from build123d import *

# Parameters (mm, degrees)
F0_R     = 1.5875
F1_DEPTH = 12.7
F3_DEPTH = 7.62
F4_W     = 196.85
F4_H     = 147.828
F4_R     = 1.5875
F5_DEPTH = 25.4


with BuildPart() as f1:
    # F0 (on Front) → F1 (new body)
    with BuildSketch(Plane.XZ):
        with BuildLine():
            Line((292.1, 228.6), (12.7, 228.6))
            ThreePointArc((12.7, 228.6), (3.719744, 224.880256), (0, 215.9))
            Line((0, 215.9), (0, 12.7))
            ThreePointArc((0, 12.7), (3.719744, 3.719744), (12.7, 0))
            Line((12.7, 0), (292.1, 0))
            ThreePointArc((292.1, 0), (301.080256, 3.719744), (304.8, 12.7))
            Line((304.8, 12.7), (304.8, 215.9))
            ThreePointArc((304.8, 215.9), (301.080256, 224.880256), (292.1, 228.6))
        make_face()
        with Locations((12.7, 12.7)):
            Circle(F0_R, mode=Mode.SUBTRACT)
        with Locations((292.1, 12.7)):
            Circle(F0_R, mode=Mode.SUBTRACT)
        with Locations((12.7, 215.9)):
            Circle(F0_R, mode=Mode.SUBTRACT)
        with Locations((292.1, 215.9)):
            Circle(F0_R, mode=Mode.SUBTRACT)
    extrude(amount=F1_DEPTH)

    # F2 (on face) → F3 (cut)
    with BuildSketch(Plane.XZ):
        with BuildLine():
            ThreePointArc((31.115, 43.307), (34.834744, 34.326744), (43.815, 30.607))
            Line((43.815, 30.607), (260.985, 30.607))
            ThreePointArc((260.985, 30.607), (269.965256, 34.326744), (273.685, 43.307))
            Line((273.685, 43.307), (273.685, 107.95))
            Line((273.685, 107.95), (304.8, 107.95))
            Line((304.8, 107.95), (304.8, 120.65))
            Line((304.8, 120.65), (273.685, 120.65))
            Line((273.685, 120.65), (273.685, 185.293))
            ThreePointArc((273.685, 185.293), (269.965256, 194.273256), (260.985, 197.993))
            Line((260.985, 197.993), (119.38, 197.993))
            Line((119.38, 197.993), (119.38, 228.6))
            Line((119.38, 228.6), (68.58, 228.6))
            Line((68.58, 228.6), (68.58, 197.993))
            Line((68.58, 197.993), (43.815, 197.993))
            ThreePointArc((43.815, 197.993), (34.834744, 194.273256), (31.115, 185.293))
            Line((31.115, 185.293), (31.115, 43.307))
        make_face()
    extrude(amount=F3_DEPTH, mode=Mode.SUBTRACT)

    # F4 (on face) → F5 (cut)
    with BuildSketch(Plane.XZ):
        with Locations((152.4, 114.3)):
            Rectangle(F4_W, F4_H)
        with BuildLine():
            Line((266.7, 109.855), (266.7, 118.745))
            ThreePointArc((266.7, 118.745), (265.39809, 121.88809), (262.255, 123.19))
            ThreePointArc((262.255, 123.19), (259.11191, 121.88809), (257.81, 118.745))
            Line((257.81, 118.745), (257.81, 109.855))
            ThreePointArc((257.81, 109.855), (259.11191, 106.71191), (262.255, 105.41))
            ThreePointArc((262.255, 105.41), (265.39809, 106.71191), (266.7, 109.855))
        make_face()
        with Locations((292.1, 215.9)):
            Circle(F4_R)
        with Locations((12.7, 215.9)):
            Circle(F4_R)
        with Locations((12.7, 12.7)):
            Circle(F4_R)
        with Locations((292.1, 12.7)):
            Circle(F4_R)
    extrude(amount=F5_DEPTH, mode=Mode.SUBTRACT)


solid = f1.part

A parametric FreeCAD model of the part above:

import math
import FreeCAD as App
import Part
import Sketcher
from FreeCAD import Vector
Q = App.Units.Quantity

doc = App.newDocument("Part")
body = doc.addObject("PartDesign::Body", "Body")

# Sketch on XZ plane
sketch1 = doc.addObject("Sketcher::SketchObject", "Sketch")
body.addObject(sketch1)
sketch1.AttachmentSupport = (doc.XZ_Plane, [""])
sketch1.MapMode = "FlatFace"
sketch1.addGeometry(Part.LineSegment(Vector(292.1, 228.6, 0), Vector(12.7, 228.6, 0)), False)
sketch1.addGeometry(Part.ArcOfCircle(Part.Circle(Vector(12.7, 215.9, 0), Vector(0, 0, 1), 12.7), math.radians(90), math.radians(180)), False)
sketch1.addGeometry(Part.LineSegment(Vector(0, 215.9, 0), Vector(0, 12.7, 0)), False)
sketch1.addGeometry(Part.ArcOfCircle(Part.Circle(Vector(12.7, 12.7, 0), Vector(0, 0, 1), 12.7), math.radians(-180), math.radians(-90)), False)
sketch1.addGeometry(Part.LineSegment(Vector(12.7, 0, 0), Vector(292.1, 0, 0)), False)
sketch1.addGeometry(Part.ArcOfCircle(Part.Circle(Vector(292.1, 12.7, 0), Vector(0, 0, 1), 12.7), math.radians(-90), math.radians(0)), False)
sketch1.addGeometry(Part.LineSegment(Vector(304.8, 12.7, 0), Vector(304.8, 215.9, 0)), False)
sketch1.addGeometry(Part.ArcOfCircle(Part.Circle(Vector(292.1, 215.9, 0), Vector(0, 0, 1), 12.7), math.radians(0), math.radians(90)), False)
sketch1.addGeometry(Part.Circle(Vector(12.7, 12.7, 0), Vector(0, 0, 1), 1.6), False)
sketch1.addGeometry(Part.Circle(Vector(292.1, 12.7, 0), Vector(0, 0, 1), 1.6), False)
sketch1.addGeometry(Part.Circle(Vector(12.7, 215.9, 0), Vector(0, 0, 1), 1.6), False)
sketch1.addGeometry(Part.Circle(Vector(292.1, 215.9, 0), Vector(0, 0, 1), 1.6), False)
sketch1.addConstraint(Sketcher.Constraint("Tangent", 0, 2, 1, 1))
sketch1.addConstraint(Sketcher.Constraint("Tangent", 1, 2, 2, 1))
sketch1.addConstraint(Sketcher.Constraint("Tangent", 2, 2, 3, 1))
sketch1.addConstraint(Sketcher.Constraint("Tangent", 3, 2, 4, 1))
sketch1.addConstraint(Sketcher.Constraint("Tangent", 4, 2, 5, 1))
sketch1.addConstraint(Sketcher.Constraint("Tangent", 5, 2, 6, 1))
sketch1.addConstraint(Sketcher.Constraint("Tangent", 6, 2, 7, 1))
sketch1.addConstraint(Sketcher.Constraint("Tangent", 7, 2, 0, 1))
sketch1.addConstraint(Sketcher.Constraint("Horizontal", 0))
sketch1.addConstraint(Sketcher.Constraint("Vertical", 2))
sketch1.addConstraint(Sketcher.Constraint("Horizontal", 4))
sketch1.addConstraint(Sketcher.Constraint("Vertical", 6))
sketch1.addConstraint(Sketcher.Constraint("Coincident", 8, 3, 3, 3))
sketch1.addConstraint(Sketcher.Constraint("Coincident", 9, 3, 5, 3))
sketch1.addConstraint(Sketcher.Constraint("Coincident", 10, 3, 1, 3))
sketch1.addConstraint(Sketcher.Constraint("Coincident", 11, 3, 7, 3))
sketch1.addConstraint(Sketcher.Constraint("Equal", 1, 3))
sketch1.addConstraint(Sketcher.Constraint("Equal", 3, 5))
sketch1.addConstraint(Sketcher.Constraint("Equal", 5, 7))
sketch1.addConstraint(Sketcher.Constraint("Equal", 8, 9))
sketch1.addConstraint(Sketcher.Constraint("Equal", 9, 10))
sketch1.addConstraint(Sketcher.Constraint("Equal", 10, 11))
sketch1.addConstraint(Sketcher.Constraint("PointOnObject", 1, 2, -2))
sketch1.addConstraint(Sketcher.Constraint("PointOnObject", 3, 2, -1))
sketch1.addConstraint(Sketcher.Constraint("Radius", 1, Q("0.5 in")))
sketch1.addConstraint(Sketcher.Constraint("DistanceX", 0, 2, 0, 1, Q("11 in")))
sketch1.addConstraint(Sketcher.Constraint("DistanceY", 2, 2, 2, 1, Q("8 in")))
sketch1.addConstraint(Sketcher.Constraint("Diameter", 8, Q("0.125 in")))
pad1 = doc.addObject("PartDesign::Pad", "Pad")
body.addObject(pad1)
pad1.Profile = sketch1
pad1.Length = Q("0.5 in")

# Sketch on XZ plane
sketch2 = doc.addObject("Sketcher::SketchObject", "Sketch001")
body.addObject(sketch2)
sketch2.AttachmentSupport = (doc.XZ_Plane, [""])
sketch2.MapMode = "FlatFace"
sketch2.addGeometry(Part.ArcOfCircle(Part.Circle(Vector(44, 43, 0), Vector(0, 0, 1), 13), math.radians(-180), math.radians(-90)), False)
sketch2.addGeometry(Part.LineSegment(Vector(44, 31, 0), Vector(261, 31, 0)), False)
sketch2.addGeometry(Part.ArcOfCircle(Part.Circle(Vector(261, 43, 0), Vector(0, 0, 1), 13), math.radians(-90), math.radians(0)), False)
sketch2.addGeometry(Part.LineSegment(Vector(274, 43, 0), Vector(274, 108, 0)), False)
sketch2.addGeometry(Part.LineSegment(Vector(274, 108, 0), Vector(305, 108, 0)), False)
sketch2.addGeometry(Part.LineSegment(Vector(305, 108, 0), Vector(305, 121, 0)), False)
sketch2.addGeometry(Part.LineSegment(Vector(305, 121, 0), Vector(274, 121, 0)), False)
sketch2.addGeometry(Part.LineSegment(Vector(274, 121, 0), Vector(274, 185, 0)), False)
sketch2.addGeometry(Part.ArcOfCircle(Part.Circle(Vector(261, 185, 0), Vector(0, 0, 1), 13), math.radians(0), math.radians(90)), False)
sketch2.addGeometry(Part.LineSegment(Vector(261, 198, 0), Vector(119, 198, 0)), False)
sketch2.addGeometry(Part.LineSegment(Vector(119, 198, 0), Vector(119, 229, 0)), False)
sketch2.addGeometry(Part.LineSegment(Vector(119, 229, 0), Vector(69, 229, 0)), False)
sketch2.addGeometry(Part.LineSegment(Vector(69, 229, 0), Vector(69, 198, 0)), False)
sketch2.addGeometry(Part.LineSegment(Vector(69, 198, 0), Vector(44, 198, 0)), False)
sketch2.addGeometry(Part.ArcOfCircle(Part.Circle(Vector(44, 185, 0), Vector(0, 0, 1), 13), math.radians(90), math.radians(180)), False)
sketch2.addGeometry(Part.LineSegment(Vector(31, 185, 0), Vector(31, 43, 0)), False)
sketch2.addConstraint(Sketcher.Constraint("Tangent", 0, 2, 1, 1))
sketch2.addConstraint(Sketcher.Constraint("Tangent", 1, 2, 2, 1))
sketch2.addConstraint(Sketcher.Constraint("Tangent", 2, 2, 3, 1))
sketch2.addConstraint(Sketcher.Constraint("Coincident", 3, 2, 4, 1))
sketch2.addConstraint(Sketcher.Constraint("Coincident", 4, 2, 5, 1))
sketch2.addConstraint(Sketcher.Constraint("Coincident", 5, 2, 6, 1))
sketch2.addConstraint(Sketcher.Constraint("Coincident", 6, 2, 7, 1))
sketch2.addConstraint(Sketcher.Constraint("Tangent", 7, 2, 8, 1))
sketch2.addConstraint(Sketcher.Constraint("Tangent", 8, 2, 9, 1))
sketch2.addConstraint(Sketcher.Constraint("Coincident", 9, 2, 10, 1))
sketch2.addConstraint(Sketcher.Constraint("Coincident", 10, 2, 11, 1))
sketch2.addConstraint(Sketcher.Constraint("Coincident", 11, 2, 12, 1))
sketch2.addConstraint(Sketcher.Constraint("Coincident", 12, 2, 13, 1))
sketch2.addConstraint(Sketcher.Constraint("Tangent", 13, 2, 14, 1))
sketch2.addConstraint(Sketcher.Constraint("Tangent", 14, 2, 15, 1))
sketch2.addConstraint(Sketcher.Constraint("Tangent", 15, 2, 0, 1))
sketch2.addConstraint(Sketcher.Constraint("Horizontal", 1))
sketch2.addConstraint(Sketcher.Constraint("Vertical", 3))
sketch2.addConstraint(Sketcher.Constraint("Horizontal", 4))
sketch2.addConstraint(Sketcher.Constraint("Vertical", 5))
sketch2.addConstraint(Sketcher.Constraint("Horizontal", 6))
sketch2.addConstraint(Sketcher.Constraint("Vertical", 7))
sketch2.addConstraint(Sketcher.Constraint("Horizontal", 9))
sketch2.addConstraint(Sketcher.Constraint("Vertical", 10))
sketch2.addConstraint(Sketcher.Constraint("Horizontal", 11))
sketch2.addConstraint(Sketcher.Constraint("Vertical", 12))
sketch2.addConstraint(Sketcher.Constraint("Horizontal", 13))
sketch2.addConstraint(Sketcher.Constraint("Vertical", 15))
sketch2.addConstraint(Sketcher.Constraint("Equal", 0, 2))
sketch2.addConstraint(Sketcher.Constraint("Equal", 2, 8))
sketch2.addConstraint(Sketcher.Constraint("Equal", 8, 14))
sketch2.addConstraint(Sketcher.Constraint("Horizontal", 8, 3, 14, 3))
sketch2.addConstraint(Sketcher.Constraint("Vertical", 2, 3, 8, 3))
sketch2.addConstraint(Sketcher.Constraint("Equal", 3, 7))
sketch2.addConstraint(Sketcher.Constraint("Radius", 0, Q("0.5 in")))
sketch2.addConstraint(Sketcher.Constraint("DistanceX", 11, 2, 11, 1, Q("2 in")))
sketch2.addConstraint(Sketcher.Constraint("DistanceY", 5, 1, 5, 2, Q("0.5 in")))
sketch2.addConstraint(Sketcher.Constraint("DistanceX", -1, 1, 4, 2, Q("12 in")))
sketch2.addConstraint(Sketcher.Constraint("DistanceY", -1, 1, 10, 2, Q("9 in")))
sketch2.addConstraint(Sketcher.Constraint("DistanceX", 1, 1, 1, 2, Q("8.55 in")))
sketch2.addConstraint(Sketcher.Constraint("DistanceY", 15, 2, 15, 1, Q("5.59 in")))
sketch2.addConstraint(Sketcher.Constraint("DistanceX", -1, 1, 9, 2, Q("4.7 in")))
sketch2.addConstraint(Sketcher.Constraint("DistanceX", 4, 1, 4, 2, Q("1.225 in")))
sketch2.addConstraint(Sketcher.Constraint("DistanceY", 10, 1, 10, 2, Q("1.205 in")))
pocket1 = doc.addObject("PartDesign::Pocket", "Pocket")
body.addObject(pocket1)
pocket1.Profile = sketch2
pocket1.Length = Q("0.3 in")
pocket1.Reversed = True

# Sketch on XZ plane
sketch3 = doc.addObject("Sketcher::SketchObject", "Sketch002")
body.addObject(sketch3)
sketch3.AttachmentSupport = (doc.XZ_Plane, [""])
sketch3.MapMode = "FlatFace"
sketch3.addGeometry(Part.LineSegment(Vector(54, 188.2, 0), Vector(54, 40.4, 0)), False)
sketch3.addGeometry(Part.LineSegment(Vector(54, 40.4, 0), Vector(250.8, 40.4, 0)), False)
sketch3.addGeometry(Part.LineSegment(Vector(250.8, 40.4, 0), Vector(250.8, 188.2, 0)), False)
sketch3.addGeometry(Part.LineSegment(Vector(250.8, 188.2, 0), Vector(54, 188.2, 0)), False)
sketch3.addGeometry(Part.LineSegment(Vector(266.7, 109.9, 0), Vector(266.7, 118.7, 0)), False)
sketch3.addGeometry(Part.ArcOfCircle(Part.Circle(Vector(262.3, 118.7, 0), Vector(0, 0, 1), 4.4), math.radians(0), math.radians(90)), False)
sketch3.addGeometry(Part.ArcOfCircle(Part.Circle(Vector(262.3, 118.7, 0), Vector(0, 0, 1), 4.4), math.radians(90), math.radians(180)), False)
sketch3.addGeometry(Part.LineSegment(Vector(257.8, 118.7, 0), Vector(257.8, 109.9, 0)), False)
sketch3.addGeometry(Part.ArcOfCircle(Part.Circle(Vector(262.3, 109.9, 0), Vector(0, 0, 1), 4.4), math.radians(180), math.radians(270)), False)
sketch3.addGeometry(Part.ArcOfCircle(Part.Circle(Vector(262.3, 109.9, 0), Vector(0, 0, 1), 4.4), math.radians(-90), math.radians(0)), False)
sketch3.addGeometry(Part.Circle(Vector(292.1, 215.9, 0), Vector(0, 0, 1), 1.6), False)
sketch3.addGeometry(Part.Circle(Vector(12.7, 215.9, 0), Vector(0, 0, 1), 1.6), False)
sketch3.addGeometry(Part.Circle(Vector(12.7, 12.7, 0), Vector(0, 0, 1), 1.6), False)
sketch3.addGeometry(Part.Circle(Vector(292.1, 12.7, 0), Vector(0, 0, 1), 1.6), False)
sketch3.addConstraint(Sketcher.Constraint("Coincident", 0, 2, 1, 1))
sketch3.addConstraint(Sketcher.Constraint("Coincident", 1, 2, 2, 1))
sketch3.addConstraint(Sketcher.Constraint("Coincident", 2, 2, 3, 1))
sketch3.addConstraint(Sketcher.Constraint("Coincident", 3, 2, 0, 1))
sketch3.addConstraint(Sketcher.Constraint("Tangent", 4, 2, 5, 1))
sketch3.addConstraint(Sketcher.Constraint("Tangent", 5, 2, 6, 1))
sketch3.addConstraint(Sketcher.Constraint("Tangent", 6, 2, 7, 1))
sketch3.addConstraint(Sketcher.Constraint("Tangent", 7, 2, 8, 1))
sketch3.addConstraint(Sketcher.Constraint("Tangent", 8, 2, 9, 1))
sketch3.addConstraint(Sketcher.Constraint("Tangent", 9, 2, 4, 1))
sketch3.addConstraint(Sketcher.Constraint("Vertical", 0))
sketch3.addConstraint(Sketcher.Constraint("Horizontal", 1))
sketch3.addConstraint(Sketcher.Constraint("Vertical", 2))
sketch3.addConstraint(Sketcher.Constraint("Horizontal", 3))
sketch3.addConstraint(Sketcher.Constraint("Vertical", 4))
sketch3.addConstraint(Sketcher.Constraint("Vertical", 7))
sketch3.addConstraint(Sketcher.Constraint("Equal", 5, 6))
sketch3.addConstraint(Sketcher.Constraint("Equal", 6, 8))
sketch3.addConstraint(Sketcher.Constraint("Equal", 10, 11))
sketch3.addConstraint(Sketcher.Constraint("Equal", 11, 12))
sketch3.addConstraint(Sketcher.Constraint("Equal", 12, 13))
sketch3.addConstraint(Sketcher.Constraint("Horizontal", 10, 3, 11, 3))
sketch3.addConstraint(Sketcher.Constraint("Horizontal", 12, 3, 13, 3))
sketch3.addConstraint(Sketcher.Constraint("Vertical", 11, 3, 12, 3))
sketch3.addConstraint(Sketcher.Constraint("Vertical", 10, 3, 13, 3))
sketch3.addConstraint(Sketcher.Constraint("Vertical", 9, 3, 5, 2))
sketch3.addConstraint(Sketcher.Constraint("Vertical", 5, 2, 8, 2))
sketch3.addConstraint(Sketcher.Constraint("Diameter", 10, Q("0.125 in")))
sketch3.addConstraint(Sketcher.Constraint("Radius", 5, Q("0.175 in")))
sketch3.addConstraint(Sketcher.Constraint("DistanceX", 11, 3, 10, 3, Q("11 in")))
sketch3.addConstraint(Sketcher.Constraint("DistanceY", 12, 3, 11, 3, Q("8 in")))
sketch3.addConstraint(Sketcher.Constraint("DistanceX", 1, 1, 1, 2, Q("7.75 in")))
sketch3.addConstraint(Sketcher.Constraint("DistanceY", 0, 2, 0, 1, Q("5.82 in")))
sketch3.addConstraint(Sketcher.Constraint("DistanceY", 4, 1, 4, 2, Q("0.35 in")))
sketch3.addConstraint(Sketcher.Constraint("DistanceX", -1, 1, 10, 3, Q("11.5 in")))
sketch3.addConstraint(Sketcher.Constraint("DistanceY", -1, 1, 10, 3, Q("8.5 in")))
sketch3.addConstraint(Sketcher.Constraint("DistanceX", -1, 1, 4, 2, Q("10.5 in")))
sketch3.addConstraint(Sketcher.Constraint("DistanceX", 0, 2, 8, 3, Q("8.2 in")))
sketch3.addConstraint(Sketcher.Constraint("DistanceY", -1, 1, 0, 2, Q("1.59 in")))
sketch3.addConstraint(Sketcher.Constraint("DistanceY", -1, 1, 5, 2, Q("4.85 in")))
pocket2 = doc.addObject("PartDesign::Pocket", "Pocket001")
body.addObject(pocket2)
pocket2.Profile = sketch3
pocket2.Length = Q("1 in")
pocket2.Reversed = True

doc.recompute()
